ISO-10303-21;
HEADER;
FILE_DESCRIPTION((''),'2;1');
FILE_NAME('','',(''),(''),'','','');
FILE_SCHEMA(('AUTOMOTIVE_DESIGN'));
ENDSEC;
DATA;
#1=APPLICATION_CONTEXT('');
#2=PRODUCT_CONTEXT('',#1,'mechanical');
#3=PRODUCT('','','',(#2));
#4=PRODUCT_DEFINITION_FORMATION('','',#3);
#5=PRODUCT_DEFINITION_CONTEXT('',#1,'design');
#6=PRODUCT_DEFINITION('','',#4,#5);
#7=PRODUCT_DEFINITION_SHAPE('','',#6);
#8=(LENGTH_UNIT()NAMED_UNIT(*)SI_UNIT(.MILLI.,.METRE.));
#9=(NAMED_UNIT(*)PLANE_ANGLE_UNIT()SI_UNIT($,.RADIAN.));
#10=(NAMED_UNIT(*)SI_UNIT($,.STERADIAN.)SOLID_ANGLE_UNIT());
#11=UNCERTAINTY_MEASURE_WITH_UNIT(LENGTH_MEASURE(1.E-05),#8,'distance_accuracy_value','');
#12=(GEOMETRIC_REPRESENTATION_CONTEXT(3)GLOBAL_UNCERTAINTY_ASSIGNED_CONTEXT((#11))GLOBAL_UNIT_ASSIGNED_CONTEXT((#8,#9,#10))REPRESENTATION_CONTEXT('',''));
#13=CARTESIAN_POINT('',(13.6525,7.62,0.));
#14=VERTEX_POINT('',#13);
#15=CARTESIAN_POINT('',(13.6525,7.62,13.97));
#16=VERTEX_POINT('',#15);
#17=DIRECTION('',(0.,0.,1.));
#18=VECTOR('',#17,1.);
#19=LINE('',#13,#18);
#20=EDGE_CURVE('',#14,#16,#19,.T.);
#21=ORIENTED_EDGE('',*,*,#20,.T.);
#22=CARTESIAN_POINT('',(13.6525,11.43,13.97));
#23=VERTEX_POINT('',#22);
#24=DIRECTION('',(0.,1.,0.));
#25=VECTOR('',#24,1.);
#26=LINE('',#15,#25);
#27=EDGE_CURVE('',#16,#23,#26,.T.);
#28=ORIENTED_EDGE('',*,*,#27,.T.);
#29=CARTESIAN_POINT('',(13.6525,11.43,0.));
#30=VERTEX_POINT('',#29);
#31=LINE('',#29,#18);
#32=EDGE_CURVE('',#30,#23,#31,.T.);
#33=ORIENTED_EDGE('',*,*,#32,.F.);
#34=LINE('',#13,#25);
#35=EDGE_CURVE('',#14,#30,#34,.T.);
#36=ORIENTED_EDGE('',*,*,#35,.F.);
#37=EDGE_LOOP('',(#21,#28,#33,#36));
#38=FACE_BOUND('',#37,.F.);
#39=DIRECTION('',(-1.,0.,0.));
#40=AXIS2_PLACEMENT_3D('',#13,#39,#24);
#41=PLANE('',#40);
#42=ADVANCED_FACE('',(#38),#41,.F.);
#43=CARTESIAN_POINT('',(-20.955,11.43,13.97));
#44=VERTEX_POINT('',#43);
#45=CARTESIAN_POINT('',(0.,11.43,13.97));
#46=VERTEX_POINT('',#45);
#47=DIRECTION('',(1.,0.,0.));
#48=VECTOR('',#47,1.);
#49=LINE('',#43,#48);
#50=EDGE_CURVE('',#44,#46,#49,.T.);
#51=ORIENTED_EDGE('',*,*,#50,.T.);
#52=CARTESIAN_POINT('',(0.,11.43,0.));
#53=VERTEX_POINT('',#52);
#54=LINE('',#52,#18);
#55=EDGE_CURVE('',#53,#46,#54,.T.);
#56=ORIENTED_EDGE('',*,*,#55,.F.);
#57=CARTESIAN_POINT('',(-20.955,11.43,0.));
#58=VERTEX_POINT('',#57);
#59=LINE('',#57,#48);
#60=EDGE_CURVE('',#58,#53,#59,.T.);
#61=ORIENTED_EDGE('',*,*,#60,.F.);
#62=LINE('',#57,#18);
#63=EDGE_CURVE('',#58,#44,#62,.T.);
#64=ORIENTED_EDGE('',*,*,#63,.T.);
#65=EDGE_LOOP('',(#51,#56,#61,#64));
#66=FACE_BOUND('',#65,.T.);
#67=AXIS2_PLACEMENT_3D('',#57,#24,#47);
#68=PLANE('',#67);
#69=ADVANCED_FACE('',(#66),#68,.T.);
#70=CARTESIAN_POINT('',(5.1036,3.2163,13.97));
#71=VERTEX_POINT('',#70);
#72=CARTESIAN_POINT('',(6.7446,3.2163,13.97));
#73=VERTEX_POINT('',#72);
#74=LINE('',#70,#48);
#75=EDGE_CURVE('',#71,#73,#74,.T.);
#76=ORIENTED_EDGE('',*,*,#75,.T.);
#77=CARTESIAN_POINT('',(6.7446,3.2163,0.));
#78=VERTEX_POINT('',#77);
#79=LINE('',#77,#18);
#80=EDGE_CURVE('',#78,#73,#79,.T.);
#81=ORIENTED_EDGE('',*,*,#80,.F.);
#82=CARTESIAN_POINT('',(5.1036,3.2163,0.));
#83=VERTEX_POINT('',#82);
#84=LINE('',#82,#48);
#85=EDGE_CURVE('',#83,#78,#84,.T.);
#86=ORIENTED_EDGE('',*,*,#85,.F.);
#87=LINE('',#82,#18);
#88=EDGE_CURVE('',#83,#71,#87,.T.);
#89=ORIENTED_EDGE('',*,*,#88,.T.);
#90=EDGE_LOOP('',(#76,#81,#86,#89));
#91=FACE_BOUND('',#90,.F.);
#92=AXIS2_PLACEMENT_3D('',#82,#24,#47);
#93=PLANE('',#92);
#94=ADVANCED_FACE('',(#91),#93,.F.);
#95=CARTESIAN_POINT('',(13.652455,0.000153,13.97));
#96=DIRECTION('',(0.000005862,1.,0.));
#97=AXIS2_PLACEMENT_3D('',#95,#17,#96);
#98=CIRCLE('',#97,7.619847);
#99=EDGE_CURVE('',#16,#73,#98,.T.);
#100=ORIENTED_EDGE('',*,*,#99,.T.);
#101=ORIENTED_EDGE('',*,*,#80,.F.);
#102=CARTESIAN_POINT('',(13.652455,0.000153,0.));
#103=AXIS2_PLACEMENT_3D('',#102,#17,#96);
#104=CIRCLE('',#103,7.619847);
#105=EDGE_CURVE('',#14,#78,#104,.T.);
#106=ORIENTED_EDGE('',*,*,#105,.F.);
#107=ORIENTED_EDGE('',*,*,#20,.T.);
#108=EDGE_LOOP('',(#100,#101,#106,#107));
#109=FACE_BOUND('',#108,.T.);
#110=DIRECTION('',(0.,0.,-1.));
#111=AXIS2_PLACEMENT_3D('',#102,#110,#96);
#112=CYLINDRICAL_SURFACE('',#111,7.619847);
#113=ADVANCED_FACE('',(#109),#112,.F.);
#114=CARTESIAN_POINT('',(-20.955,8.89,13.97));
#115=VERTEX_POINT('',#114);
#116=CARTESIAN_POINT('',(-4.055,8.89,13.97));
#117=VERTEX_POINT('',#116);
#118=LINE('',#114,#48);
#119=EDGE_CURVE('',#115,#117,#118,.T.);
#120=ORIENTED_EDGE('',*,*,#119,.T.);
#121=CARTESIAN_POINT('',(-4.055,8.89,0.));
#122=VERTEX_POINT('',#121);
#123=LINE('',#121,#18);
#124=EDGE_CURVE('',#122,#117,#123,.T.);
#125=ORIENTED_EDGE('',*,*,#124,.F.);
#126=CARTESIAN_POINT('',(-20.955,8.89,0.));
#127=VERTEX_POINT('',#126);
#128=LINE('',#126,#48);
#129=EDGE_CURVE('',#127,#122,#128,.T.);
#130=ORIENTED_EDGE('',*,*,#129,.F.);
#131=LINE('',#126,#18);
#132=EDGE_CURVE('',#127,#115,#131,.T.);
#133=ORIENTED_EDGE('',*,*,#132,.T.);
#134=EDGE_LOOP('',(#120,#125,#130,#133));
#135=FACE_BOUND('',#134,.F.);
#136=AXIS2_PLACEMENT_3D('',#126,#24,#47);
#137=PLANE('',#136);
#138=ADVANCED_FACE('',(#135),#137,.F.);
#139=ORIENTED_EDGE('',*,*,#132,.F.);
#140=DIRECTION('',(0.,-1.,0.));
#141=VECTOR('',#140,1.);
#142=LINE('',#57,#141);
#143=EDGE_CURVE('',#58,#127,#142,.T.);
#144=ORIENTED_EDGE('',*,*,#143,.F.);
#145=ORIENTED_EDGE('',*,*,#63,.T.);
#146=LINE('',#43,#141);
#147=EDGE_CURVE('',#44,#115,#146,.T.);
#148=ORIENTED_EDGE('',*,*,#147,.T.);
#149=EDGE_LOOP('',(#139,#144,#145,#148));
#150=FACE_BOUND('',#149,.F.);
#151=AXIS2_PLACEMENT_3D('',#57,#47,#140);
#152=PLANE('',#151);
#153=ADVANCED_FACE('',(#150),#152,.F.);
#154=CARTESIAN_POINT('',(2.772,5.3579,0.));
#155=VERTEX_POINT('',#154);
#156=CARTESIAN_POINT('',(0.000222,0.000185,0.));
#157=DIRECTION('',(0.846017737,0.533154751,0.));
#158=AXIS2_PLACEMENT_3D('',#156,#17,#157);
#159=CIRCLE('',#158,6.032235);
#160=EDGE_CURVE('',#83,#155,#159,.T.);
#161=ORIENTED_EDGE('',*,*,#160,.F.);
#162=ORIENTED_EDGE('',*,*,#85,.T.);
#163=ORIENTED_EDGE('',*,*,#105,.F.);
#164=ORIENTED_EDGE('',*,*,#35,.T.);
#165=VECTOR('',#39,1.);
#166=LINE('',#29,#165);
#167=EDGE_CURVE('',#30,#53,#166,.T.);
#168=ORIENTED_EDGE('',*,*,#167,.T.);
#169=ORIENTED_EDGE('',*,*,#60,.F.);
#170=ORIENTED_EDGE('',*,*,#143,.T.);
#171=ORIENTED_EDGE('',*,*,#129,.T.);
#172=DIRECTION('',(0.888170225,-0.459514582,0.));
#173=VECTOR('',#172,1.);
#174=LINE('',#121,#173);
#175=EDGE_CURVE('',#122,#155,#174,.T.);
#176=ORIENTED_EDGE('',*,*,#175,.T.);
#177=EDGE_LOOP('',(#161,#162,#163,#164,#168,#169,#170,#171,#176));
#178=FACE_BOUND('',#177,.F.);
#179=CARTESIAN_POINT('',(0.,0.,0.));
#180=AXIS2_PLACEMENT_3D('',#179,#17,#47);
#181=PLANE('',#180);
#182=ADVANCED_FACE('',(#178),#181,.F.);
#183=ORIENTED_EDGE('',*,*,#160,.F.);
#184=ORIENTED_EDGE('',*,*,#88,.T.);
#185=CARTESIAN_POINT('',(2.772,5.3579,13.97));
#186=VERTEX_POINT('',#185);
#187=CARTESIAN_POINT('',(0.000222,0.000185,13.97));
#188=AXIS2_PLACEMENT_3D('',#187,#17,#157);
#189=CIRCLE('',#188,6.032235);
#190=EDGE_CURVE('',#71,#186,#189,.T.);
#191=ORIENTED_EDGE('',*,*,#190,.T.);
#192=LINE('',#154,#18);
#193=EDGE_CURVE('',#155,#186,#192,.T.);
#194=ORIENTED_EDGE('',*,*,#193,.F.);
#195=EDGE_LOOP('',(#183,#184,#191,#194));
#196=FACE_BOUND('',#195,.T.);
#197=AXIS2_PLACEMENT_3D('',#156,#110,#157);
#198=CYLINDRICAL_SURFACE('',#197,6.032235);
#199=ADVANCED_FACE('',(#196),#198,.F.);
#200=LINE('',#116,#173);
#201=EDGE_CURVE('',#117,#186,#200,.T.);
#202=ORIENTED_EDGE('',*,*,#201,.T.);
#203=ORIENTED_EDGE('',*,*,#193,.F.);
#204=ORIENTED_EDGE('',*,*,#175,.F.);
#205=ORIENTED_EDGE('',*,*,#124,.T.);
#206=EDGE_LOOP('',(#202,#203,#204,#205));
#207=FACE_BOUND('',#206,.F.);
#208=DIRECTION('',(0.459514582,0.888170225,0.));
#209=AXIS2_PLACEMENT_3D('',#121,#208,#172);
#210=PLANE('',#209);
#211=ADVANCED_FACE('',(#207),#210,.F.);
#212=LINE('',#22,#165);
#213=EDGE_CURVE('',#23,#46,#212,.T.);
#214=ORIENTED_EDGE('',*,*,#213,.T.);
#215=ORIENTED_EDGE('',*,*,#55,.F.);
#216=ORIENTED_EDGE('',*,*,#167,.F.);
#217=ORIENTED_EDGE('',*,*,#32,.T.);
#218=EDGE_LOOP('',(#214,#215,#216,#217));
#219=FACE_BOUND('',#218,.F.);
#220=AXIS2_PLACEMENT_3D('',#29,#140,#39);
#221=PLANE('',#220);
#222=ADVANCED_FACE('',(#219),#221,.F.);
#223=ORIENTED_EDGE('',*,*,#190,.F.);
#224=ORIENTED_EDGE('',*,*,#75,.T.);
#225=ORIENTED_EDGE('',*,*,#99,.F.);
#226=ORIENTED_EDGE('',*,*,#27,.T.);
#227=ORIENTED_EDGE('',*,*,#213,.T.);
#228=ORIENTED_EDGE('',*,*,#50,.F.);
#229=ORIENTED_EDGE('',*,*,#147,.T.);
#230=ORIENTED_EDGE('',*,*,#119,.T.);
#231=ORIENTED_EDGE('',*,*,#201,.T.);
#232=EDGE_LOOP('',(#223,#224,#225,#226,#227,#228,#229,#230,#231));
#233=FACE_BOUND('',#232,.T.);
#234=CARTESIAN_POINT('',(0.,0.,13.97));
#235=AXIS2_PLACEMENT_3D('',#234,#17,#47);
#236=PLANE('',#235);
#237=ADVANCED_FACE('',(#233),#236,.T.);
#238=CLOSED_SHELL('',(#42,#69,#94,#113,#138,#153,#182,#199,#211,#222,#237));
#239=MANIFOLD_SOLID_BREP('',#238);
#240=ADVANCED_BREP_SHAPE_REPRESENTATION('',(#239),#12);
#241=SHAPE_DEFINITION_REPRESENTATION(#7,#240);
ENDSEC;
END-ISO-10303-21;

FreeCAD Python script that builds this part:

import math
import FreeCAD as App
import Part
import Sketcher
from FreeCAD import Vector
Q = App.Units.Quantity

doc = App.newDocument("Part")
body = doc.addObject("PartDesign::Body", "Body")

# Sketch on XY plane
sketch1 = body.newObject("Sketcher::SketchObject", "Sketch")
sketch1.AttachmentSupport = (doc.getObject("XY_Plane"), [""])
sketch1.MapMode = "FlatFace"
sketch1.addGeometry([
    Part.ArcOfCircle(Part.Circle(Vector(0, 0, 0), Vector(0, 0, 1), 6), math.radians(32), math.radians(63)),  # 0
    Part.LineSegment(Vector(5.1, 3.2, 0), Vector(6.7, 3.2, 0)),  # 1
    Part.ArcOfCircle(Part.Circle(Vector(13.7, 0, 0), Vector(0, 0, 1), 7.6), math.radians(90), math.radians(155)),  # 2
    Part.LineSegment(Vector(13.7, 7.6, 0), Vector(13.7, 11.4, 0)),  # 3
    Part.LineSegment(Vector(13.7, 11.4, 0), Vector(-21, 11.4, 0)),  # 4
    Part.LineSegment(Vector(-21, 11.4, 0), Vector(-21, 8.9, 0)),  # 5
    Part.LineSegment(Vector(-21, 8.9, 0), Vector(-4.1, 8.9, 0)),  # 6
    Part.LineSegment(Vector(-4.1, 8.9, 0), Vector(2.8, 5.4, 0)),  # 7
], False)
sketch1.addConstraint([
    Sketcher.Constraint("Coincident", 0, 1, 1, 1),
    Sketcher.Constraint("Coincident", 1, 2, 2, 2),
    Sketcher.Constraint("Coincident", 2, 1, 3, 1),
    Sketcher.Constraint("Coincident", 3, 2, 4, 1),
    Sketcher.Constraint("Coincident", 4, 2, 5, 1),
    Sketcher.Constraint("Coincident", 5, 2, 6, 1),
    Sketcher.Constraint("Coincident", 6, 2, 7, 1),
    Sketcher.Constraint("Tangent", 7, 2, 0, 2),
    Sketcher.Constraint("Horizontal", 1),
    Sketcher.Constraint("Vertical", 3),
    Sketcher.Constraint("Horizontal", 4),
    Sketcher.Constraint("Vertical", 5),
    Sketcher.Constraint("Horizontal", 6),
    Sketcher.Constraint("Coincident", 0, 3, -1, 1),
    Sketcher.Constraint("PointOnObject", 2, 3, -1),
    Sketcher.Constraint("DistanceY", 5, 2, 5, 1, Q("0.1 in")),
    Sketcher.Constraint("Radius", 0, Q("0.2375 in")),
    Sketcher.Constraint("Radius", 2, Q("0.3 in")),
    Sketcher.Constraint("DistanceY", 3, 1, 3, 2, Q("0.15 in")),
    Sketcher.Constraint("DistanceX", 1, 1, 1, 2, Q("0.0646 in")),
    Sketcher.Constraint("DistanceX", 4, 2, 4, 1, Q("1.3625 in")),
    Sketcher.Constraint("DistanceX", 4, 2, -1, 1, Q("0.825 in")),
    Sketcher.Constraint("DistanceX", 6, 1, 6, 2, 16.9),
    Sketcher.Constraint("DistanceX", -1, 1, 2, 3, Q("0.5375 in")),
])
pad1 = body.newObject("PartDesign::Pad", "Pad")
pad1.Profile = sketch1
pad1.Length = Q("0.55 in")

doc.recompute()
